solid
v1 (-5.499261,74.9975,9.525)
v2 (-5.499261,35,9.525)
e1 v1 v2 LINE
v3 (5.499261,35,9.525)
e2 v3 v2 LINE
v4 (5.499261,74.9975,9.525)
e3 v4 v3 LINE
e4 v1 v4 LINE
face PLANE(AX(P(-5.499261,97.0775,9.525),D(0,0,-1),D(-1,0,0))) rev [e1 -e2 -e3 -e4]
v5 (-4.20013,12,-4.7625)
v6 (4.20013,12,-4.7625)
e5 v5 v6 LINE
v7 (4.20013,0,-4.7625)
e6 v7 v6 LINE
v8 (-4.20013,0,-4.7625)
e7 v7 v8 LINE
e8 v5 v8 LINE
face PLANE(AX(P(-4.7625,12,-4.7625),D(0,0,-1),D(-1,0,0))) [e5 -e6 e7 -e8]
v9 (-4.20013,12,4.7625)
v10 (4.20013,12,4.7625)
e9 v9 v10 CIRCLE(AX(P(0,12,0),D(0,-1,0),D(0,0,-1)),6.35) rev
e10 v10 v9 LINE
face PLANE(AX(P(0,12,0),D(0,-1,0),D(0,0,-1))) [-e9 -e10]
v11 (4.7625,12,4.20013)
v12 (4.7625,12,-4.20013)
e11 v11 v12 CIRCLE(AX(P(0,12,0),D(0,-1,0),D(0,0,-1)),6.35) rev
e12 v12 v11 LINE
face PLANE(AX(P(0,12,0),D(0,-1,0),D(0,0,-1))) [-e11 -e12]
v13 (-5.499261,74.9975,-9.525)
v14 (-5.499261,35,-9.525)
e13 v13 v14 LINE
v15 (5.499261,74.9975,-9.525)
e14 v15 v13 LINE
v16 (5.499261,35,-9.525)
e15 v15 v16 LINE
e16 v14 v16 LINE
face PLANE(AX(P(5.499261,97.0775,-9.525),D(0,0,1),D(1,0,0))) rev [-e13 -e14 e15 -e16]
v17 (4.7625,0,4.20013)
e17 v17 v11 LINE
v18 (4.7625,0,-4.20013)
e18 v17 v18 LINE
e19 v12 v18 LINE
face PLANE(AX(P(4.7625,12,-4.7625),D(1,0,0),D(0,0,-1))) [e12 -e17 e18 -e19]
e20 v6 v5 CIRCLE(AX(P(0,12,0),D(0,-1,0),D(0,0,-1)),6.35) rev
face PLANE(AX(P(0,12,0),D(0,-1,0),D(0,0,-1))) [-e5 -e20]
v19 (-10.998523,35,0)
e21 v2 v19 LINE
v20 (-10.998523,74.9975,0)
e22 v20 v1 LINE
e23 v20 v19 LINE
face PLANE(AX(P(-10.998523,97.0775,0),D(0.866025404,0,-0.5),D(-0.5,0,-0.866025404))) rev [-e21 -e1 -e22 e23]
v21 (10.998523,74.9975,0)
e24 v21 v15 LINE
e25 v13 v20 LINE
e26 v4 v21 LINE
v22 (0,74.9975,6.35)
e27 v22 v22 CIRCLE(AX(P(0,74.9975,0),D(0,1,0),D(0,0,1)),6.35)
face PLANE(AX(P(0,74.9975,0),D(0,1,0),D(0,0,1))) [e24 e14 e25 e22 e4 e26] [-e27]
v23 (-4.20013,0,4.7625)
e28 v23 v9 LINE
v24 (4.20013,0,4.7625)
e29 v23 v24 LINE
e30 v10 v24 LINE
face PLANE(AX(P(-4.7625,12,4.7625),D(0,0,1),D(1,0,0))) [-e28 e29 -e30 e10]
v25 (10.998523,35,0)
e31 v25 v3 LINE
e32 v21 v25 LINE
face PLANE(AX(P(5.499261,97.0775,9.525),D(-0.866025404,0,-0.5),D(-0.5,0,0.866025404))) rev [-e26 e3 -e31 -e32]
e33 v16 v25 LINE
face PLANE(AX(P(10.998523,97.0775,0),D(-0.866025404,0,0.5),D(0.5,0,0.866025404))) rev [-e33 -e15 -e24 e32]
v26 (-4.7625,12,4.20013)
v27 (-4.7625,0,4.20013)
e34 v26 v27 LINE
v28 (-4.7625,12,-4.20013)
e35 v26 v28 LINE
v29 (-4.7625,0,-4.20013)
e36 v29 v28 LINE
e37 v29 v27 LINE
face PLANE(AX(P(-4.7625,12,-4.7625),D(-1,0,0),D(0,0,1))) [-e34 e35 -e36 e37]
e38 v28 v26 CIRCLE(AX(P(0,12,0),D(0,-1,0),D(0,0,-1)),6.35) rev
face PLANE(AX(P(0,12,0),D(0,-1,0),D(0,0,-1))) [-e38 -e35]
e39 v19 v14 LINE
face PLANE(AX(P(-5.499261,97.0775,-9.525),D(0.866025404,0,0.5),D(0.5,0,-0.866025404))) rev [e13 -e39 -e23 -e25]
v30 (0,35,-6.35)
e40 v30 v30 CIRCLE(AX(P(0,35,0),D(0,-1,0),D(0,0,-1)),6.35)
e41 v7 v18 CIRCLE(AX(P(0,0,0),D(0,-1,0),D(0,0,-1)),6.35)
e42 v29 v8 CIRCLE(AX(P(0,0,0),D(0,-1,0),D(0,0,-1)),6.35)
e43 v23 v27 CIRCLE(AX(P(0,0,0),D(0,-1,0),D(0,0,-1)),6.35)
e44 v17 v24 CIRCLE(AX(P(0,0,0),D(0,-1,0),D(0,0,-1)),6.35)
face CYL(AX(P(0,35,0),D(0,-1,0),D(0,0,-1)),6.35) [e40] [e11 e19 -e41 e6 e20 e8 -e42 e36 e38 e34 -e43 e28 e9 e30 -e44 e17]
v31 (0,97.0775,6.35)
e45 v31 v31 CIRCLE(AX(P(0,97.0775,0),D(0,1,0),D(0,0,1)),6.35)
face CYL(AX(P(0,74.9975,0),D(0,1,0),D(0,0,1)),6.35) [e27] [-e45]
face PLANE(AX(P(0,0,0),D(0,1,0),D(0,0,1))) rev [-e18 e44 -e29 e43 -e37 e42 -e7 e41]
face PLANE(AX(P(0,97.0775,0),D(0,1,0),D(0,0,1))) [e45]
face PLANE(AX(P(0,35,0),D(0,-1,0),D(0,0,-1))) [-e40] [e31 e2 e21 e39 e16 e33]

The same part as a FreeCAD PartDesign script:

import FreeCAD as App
import Part
import Sketcher
from FreeCAD import Vector
Q = App.Units.Quantity


def add_polygon(sketch, points):
    """Adds a closed chain of lines whose ends are joined by coincident constraints."""
    first, n = sketch.GeometryCount, len(points)
    for a, b in zip(points, points[1:] + points[:1]):
        sketch.addGeometry(Part.LineSegment(App.Vector(*a, 0), App.Vector(*b, 0)), False)
    for i in range(n):
        sketch.addConstraint(Sketcher.Constraint("Coincident", first + i, 2, first + (i + 1) % n, 1))

doc = App.newDocument("Part")
body = doc.addObject("PartDesign::Body", "Body")

sketch1 = body.newObject("Sketcher::SketchObject", "Sketch")
sketch1.AttachmentSupport = (doc.getObject("XZ_Plane"), [""])
sketch1.MapMode = "FlatFace"
add_polygon(sketch1, [(5.499261, -9.525), (-5.499261, -9.525), (-10.998523, 0), (-5.499261, 9.525), (5.499261, 9.525), (10.998523, 0)])
sketch1.addConstraint([
    Sketcher.Constraint("Horizontal", 0),
    Sketcher.Constraint("Horizontal", 3),
    Sketcher.Constraint("Symmetric", 0, 2, 3, 2, -1, 1),
    Sketcher.Constraint("Symmetric", 1, 2, 4, 2, -1, 1),
    Sketcher.Constraint("PointOnObject", 1, 2, -1),
    Sketcher.Constraint("Parallel", 2, 5),
    Sketcher.Constraint("Vertical", 0, 2, 2, 2),
    Sketcher.Constraint("Angle", 1, Q("120 deg")),
    Sketcher.Constraint("DistanceY", 0, 2, 2, 2, Q("19.05 mm")),
    Sketcher.Constraint("DistanceX", 0, 2, 0, 1, Q("10.998523 mm")),
])
pad1 = body.newObject("PartDesign::Pad", "Pad")
pad1.Profile = sketch1
pad1.Length = 97.0775
pad1.Reversed = True

sketch2 = body.newObject("Sketcher::SketchObject", "Sketch001")
sketch2.AttachmentSupport = (doc.getObject("XZ_Plane"), [""])
sketch2.MapMode = "FlatFace"
sketch2.AttachmentOffset = App.Placement(Vector(0, 0, -97.0775), App.Rotation())
add_polygon(sketch2, [(10.998523, 0), (5.499261, -9.525), (-5.499261, -9.525), (-10.998523, 0), (-5.499261, 9.525), (5.499261, 9.525)])
sketch2.addGeometry(Part.Circle(Vector(0, 0, 0), Vector(0, 0, 1), 6.35), False)
sketch2.addConstraint([
    Sketcher.Constraint("Horizontal", 1),
    Sketcher.Constraint("Horizontal", 4),
    Sketcher.Constraint("Coincident", 6, 3, -1, 1),
    Sketcher.Constraint("Symmetric", 0, 2, 3, 2, -1, 1),
    Sketcher.Constraint("Symmetric", 2, 2, 5, 2, -1, 1),
    Sketcher.Constraint("PointOnObject", 2, 2, -1),
    Sketcher.Constraint("Parallel", 2, 5),
    Sketcher.Constraint("Vertical", 1, 2, 3, 2),
    Sketcher.Constraint("Diameter", 6, Q("12.7 mm")),
    Sketcher.Constraint("Angle", 0, Q("-120 deg")),
    Sketcher.Constraint("DistanceY", 1, 2, 3, 2, Q("19.05 mm")),
    Sketcher.Constraint("DistanceX", 1, 2, 1, 1, Q("10.998523 mm")),
])
pocket1 = body.newObject("PartDesign::Pocket", "Pocket")
pocket1.Profile = sketch2
pocket1.Length = 22.08
pocket1.Reversed = True

sketch3 = body.newObject("Sketcher::SketchObject", "Sketch002")
sketch3.AttachmentSupport = (doc.getObject("XZ_Plane"), [""])
sketch3.MapMode = "FlatFace"
sketch3.AttachmentOffset = App.Placement(Vector(0, 0, -35), App.Rotation())
add_polygon(sketch3, [(5.499261, -9.525), (10.998523, 0), (5.499261, 9.525), (-5.499261, 9.525), (-10.998523, 0), (-5.499261, -9.525)])
sketch3.addGeometry(Part.Circle(Vector(0, 0, 0), Vector(0, 0, 1), 6.35), False)
sketch3.addConstraint([
    Sketcher.Constraint("Horizontal", 2),
    Sketcher.Constraint("Horizontal", 5),
    Sketcher.Constraint("Coincident", 6, 3, -1, 1),
    Sketcher.Constraint("Symmetric", 0, 2, 3, 2, -1, 1),
    Sketcher.Constraint("Symmetric", 1, 2, 4, 2, -1, 1),
    Sketcher.Constraint("PointOnObject", 0, 2, -1),
    Sketcher.Constraint("Parallel", 0, 3),
    Sketcher.Constraint("Vertical", 2, 2, 4, 2),
    Sketcher.Constraint("Diameter", 6, Q("12.7 mm")),
    Sketcher.Constraint("Angle", 0, Q("60 deg")),
    Sketcher.Constraint("DistanceY", 4, 2, 2, 2, Q("19.05 mm")),
    Sketcher.Constraint("DistanceX", 2, 2, 2, 1, Q("10.998523 mm")),
])
pocket2 = body.newObject("PartDesign::Pocket", "Pocket001")
pocket2.Profile = sketch3
pocket2.Length = 35
pocket2.Reversed = True

sketch4 = body.newObject("Sketcher::SketchObject", "Sketch003")
sketch4.AttachmentSupport = (doc.getObject("XZ_Plane"), [""])
sketch4.MapMode = "FlatFace"
add_polygon(sketch4, [(-5.499261, -9.525), (5.499261, -9.525), (10.998523, 0), (5.499261, 9.525), (-5.499261, 9.525), (-10.998523, 0)])
add_polygon(sketch4, [(4.7625, -4.7625), (-4.7625, -4.7625), (-4.7625, 4.7625), (4.7625, 4.7625)])
sketch4.addConstraint([
    Sketcher.Constraint("Horizontal", 0),
    Sketcher.Constraint("Horizontal", 3),
    Sketcher.Constraint("Horizontal", 6),
    Sketcher.Constraint("Vertical", 7),
    Sketcher.Constraint("Horizontal", 8),
    Sketcher.Constraint("Vertical", 9),
    Sketcher.Constraint("Symmetric", 0, 2, 3, 2, -1, 1),
    Sketcher.Constraint("Symmetric", 1, 2, 4, 2, -1, 1),
    Sketcher.Constraint("Symmetric", 6, 2, 8, 2, -1, 1),
    Sketcher.Constraint("PointOnObject", 1, 2, -1),
    Sketcher.Constraint("Parallel", 2, 5),
    Sketcher.Constraint("Vertical", 0, 2, 2, 2),
    Sketcher.Constraint("Equal", 8, 7),
    Sketcher.Constraint("Angle", 1, Q("60 deg")),
    Sketcher.Constraint("DistanceX", 6, 2, 6, 1, Q("9.525 mm")),
    Sketcher.Constraint("DistanceY", 0, 2, 2, 2, Q("19.05 mm")),
    Sketcher.Constraint("DistanceX", 0, 1, 0, 2, Q("10.998523 mm")),
])
pocket3 = body.newObject("PartDesign::Pocket", "Pocket002")
pocket3.Profile = sketch4
pocket3.Length = 12

doc.recompute()
